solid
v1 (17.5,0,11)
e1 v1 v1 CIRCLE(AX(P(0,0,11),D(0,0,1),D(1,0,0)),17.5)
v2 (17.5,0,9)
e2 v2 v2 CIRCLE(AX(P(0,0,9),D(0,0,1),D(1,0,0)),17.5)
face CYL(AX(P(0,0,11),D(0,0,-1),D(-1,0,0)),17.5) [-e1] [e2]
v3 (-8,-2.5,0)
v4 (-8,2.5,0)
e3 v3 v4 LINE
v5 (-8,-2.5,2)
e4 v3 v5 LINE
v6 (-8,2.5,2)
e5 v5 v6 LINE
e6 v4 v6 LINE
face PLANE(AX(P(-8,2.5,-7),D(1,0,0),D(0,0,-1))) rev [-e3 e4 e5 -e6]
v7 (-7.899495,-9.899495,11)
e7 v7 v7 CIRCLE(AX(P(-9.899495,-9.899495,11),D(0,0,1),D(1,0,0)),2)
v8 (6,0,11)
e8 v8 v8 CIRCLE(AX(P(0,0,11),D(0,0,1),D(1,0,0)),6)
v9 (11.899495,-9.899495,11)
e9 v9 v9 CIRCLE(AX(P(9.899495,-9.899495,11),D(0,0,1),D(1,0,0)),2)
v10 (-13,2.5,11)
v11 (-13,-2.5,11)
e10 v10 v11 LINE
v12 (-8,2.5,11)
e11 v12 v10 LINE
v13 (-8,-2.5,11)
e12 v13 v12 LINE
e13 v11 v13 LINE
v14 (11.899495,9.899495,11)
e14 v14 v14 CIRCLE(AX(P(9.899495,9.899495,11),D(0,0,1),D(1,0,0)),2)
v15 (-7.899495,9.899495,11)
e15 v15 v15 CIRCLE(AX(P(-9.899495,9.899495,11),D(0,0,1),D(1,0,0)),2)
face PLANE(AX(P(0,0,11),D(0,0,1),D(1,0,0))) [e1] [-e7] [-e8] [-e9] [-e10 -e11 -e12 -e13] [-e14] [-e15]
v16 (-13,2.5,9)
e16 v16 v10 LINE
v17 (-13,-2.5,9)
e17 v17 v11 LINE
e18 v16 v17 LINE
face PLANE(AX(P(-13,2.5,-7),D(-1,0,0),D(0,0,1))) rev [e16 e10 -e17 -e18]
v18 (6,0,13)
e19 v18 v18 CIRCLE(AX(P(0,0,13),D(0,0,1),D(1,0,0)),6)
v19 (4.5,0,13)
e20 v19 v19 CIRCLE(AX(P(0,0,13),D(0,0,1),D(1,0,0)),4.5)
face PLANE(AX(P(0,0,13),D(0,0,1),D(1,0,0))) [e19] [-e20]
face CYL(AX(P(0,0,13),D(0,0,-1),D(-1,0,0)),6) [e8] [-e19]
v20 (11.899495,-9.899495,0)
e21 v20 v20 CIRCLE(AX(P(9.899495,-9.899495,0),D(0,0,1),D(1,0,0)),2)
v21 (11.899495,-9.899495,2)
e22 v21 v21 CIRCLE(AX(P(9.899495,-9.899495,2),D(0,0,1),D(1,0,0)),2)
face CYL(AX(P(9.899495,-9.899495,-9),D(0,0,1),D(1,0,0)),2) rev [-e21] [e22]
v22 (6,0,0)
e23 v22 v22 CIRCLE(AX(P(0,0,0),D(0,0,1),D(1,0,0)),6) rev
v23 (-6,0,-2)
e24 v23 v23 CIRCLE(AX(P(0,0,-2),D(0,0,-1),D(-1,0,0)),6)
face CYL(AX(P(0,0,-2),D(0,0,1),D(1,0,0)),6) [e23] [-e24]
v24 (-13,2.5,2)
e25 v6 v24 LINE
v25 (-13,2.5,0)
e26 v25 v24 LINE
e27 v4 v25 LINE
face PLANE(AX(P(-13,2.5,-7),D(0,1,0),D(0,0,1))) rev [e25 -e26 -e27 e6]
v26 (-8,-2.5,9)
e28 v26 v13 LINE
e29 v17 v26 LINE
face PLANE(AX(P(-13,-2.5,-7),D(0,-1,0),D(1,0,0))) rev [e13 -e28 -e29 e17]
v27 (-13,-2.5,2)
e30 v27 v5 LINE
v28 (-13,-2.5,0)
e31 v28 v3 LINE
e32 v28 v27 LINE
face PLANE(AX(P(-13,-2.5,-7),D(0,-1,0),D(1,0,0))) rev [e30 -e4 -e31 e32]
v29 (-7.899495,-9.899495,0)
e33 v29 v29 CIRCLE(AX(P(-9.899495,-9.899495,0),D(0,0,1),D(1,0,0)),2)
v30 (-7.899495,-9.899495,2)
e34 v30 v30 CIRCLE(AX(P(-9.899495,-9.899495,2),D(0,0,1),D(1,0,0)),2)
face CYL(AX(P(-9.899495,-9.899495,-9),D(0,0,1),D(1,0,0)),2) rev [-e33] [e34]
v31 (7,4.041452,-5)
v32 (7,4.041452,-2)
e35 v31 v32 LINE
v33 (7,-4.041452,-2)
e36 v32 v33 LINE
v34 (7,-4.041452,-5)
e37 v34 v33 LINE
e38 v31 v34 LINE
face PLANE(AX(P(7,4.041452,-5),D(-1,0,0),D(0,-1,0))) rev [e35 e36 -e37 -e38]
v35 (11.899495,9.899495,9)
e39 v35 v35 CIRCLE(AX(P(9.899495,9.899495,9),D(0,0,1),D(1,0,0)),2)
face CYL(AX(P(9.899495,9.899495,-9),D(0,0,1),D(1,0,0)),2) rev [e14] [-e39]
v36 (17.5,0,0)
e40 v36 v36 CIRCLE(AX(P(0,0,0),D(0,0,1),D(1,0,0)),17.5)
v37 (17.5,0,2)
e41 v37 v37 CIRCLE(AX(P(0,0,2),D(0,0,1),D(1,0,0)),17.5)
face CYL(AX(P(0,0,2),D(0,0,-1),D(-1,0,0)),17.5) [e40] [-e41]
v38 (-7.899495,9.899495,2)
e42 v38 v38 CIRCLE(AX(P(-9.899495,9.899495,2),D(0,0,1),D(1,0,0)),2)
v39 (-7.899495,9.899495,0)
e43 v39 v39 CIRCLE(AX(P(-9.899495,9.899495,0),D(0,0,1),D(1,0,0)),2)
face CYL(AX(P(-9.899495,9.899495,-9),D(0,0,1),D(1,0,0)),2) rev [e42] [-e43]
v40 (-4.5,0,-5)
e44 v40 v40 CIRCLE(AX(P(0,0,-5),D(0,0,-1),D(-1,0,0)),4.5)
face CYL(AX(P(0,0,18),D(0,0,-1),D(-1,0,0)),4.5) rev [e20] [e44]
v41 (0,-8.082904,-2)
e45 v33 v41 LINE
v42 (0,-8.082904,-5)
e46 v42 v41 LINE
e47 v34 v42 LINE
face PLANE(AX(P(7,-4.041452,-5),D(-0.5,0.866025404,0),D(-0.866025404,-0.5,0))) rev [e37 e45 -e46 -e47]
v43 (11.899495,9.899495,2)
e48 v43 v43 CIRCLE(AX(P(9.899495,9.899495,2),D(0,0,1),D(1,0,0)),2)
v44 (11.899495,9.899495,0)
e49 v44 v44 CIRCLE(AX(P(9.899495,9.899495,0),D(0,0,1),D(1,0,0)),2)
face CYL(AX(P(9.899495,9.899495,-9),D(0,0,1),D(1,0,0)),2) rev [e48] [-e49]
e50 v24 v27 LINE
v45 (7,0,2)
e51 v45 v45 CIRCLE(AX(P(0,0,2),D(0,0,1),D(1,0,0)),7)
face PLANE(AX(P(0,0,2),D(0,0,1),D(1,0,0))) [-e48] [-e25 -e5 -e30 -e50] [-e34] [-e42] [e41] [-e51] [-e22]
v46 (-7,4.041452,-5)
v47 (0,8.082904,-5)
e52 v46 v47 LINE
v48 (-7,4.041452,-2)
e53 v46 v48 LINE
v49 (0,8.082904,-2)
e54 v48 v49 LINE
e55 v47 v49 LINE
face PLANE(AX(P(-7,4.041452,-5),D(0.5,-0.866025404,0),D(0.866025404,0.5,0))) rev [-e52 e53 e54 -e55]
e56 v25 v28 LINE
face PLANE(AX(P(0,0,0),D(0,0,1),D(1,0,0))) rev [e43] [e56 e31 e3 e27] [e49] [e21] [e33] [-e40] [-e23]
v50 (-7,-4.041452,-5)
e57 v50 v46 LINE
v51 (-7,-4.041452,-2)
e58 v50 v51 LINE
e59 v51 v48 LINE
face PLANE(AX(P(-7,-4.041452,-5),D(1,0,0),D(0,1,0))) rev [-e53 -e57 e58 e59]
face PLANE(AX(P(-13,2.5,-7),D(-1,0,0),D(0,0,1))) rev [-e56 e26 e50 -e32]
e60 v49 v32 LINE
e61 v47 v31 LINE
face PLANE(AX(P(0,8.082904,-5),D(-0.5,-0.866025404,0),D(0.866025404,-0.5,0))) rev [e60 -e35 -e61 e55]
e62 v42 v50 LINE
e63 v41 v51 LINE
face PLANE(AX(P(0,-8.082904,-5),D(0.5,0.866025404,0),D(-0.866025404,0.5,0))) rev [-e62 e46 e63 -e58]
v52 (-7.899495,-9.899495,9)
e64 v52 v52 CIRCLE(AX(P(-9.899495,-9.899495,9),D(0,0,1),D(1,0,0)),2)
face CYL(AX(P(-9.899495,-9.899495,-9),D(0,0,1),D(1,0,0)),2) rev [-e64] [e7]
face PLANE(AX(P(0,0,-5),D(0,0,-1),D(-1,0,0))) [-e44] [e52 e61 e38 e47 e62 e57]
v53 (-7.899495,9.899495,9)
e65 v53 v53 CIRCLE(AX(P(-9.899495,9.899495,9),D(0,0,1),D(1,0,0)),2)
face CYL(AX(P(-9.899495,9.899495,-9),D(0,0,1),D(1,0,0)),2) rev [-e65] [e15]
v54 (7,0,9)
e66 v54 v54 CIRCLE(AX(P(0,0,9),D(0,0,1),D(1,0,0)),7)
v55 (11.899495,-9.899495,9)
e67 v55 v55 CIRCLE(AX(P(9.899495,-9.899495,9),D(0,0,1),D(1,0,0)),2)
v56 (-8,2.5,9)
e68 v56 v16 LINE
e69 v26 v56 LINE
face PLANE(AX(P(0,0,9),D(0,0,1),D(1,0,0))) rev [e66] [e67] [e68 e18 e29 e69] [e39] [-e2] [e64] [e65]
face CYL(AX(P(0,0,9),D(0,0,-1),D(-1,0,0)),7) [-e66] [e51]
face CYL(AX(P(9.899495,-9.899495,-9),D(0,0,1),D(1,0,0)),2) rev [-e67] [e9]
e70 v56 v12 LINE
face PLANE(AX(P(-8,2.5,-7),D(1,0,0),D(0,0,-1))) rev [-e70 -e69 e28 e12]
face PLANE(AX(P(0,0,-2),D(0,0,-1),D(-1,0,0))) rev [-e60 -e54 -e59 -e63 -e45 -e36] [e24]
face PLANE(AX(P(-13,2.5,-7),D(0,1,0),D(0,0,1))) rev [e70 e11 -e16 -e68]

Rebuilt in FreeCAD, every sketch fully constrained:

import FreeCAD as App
import Part
import Sketcher

V = App.Vector
Q = App.Units.Quantity

doc = App.newDocument("Part")
params = doc.addObject("Spreadsheet::Sheet", "Params")
for row, (alias, value) in enumerate([
    ("sketch1_diameter", "35 mm"),
    ("pad1_length", "2 mm"),
    ("sketch2_diameter", "14 mm"),
    ("pad2_length", "7 mm"),
    ("sketch3_diameter", "35 mm"),
    ("pad3_length", "2 mm"),
    ("sketch4_width", "5 mm"),
    ("pocket1_length", "18 mm"),
    ("sketch5_diameter", "9 mm"),
    ("pocket2_length", "18 mm"),
    ("sketch6_diameter", "12 mm"),
    ("sketch6_diameter2", "9 mm"),
    ("pad4_length", "2 mm"),
    ("sketch7_diameter", "4 mm"),
    ("pocket3_length", "20 mm"),
    ("sketch8_diameter", "12 mm"),
    ("sketch8_diameter2", "9 mm"),
    ("pad5_length", "2 mm"),
    ("sketch9_diameter", "9 mm"),
    ("pad6_length", "3 mm"),
], start=1):
    params.set(f"A{row}", alias)
    params.set(f"B{row}", "=" + value)
    params.setAlias(f"B{row}", alias)

body = doc.addObject("PartDesign::Body", "Body")

sketch1 = doc.addObject("Sketcher::SketchObject", "Sketch")
body.addObject(sketch1)
sketch1.AttachmentSupport = (doc.XY_Plane, [""])
sketch1.MapMode = "FlatFace"
sketch1.addGeometry(Part.Circle(V(0, 0, 0), V(0, 0, 1), 18), False)
sketch1.addConstraint(Sketcher.Constraint("Coincident", 0, 3, -1, 1))
sketch1.addConstraint(Sketcher.Constraint("Diameter", 0, 35.0))
sketch1.setExpression("Constraints[1]", "Params.sketch1_diameter")
pad1 = doc.addObject("PartDesign::Pad", "Pad")
body.addObject(pad1)
pad1.Profile = sketch1
pad1.setExpression("Length", "Params.pad1_length")

sketch2 = doc.addObject("Sketcher::SketchObject", "Sketch001")
body.addObject(sketch2)
sketch2.AttachmentSupport = (doc.XY_Plane, [""])
sketch2.MapMode = "FlatFace"
sketch2.AttachmentOffset = App.Placement(V(0, 0, 2), App.Rotation())
sketch2.addGeometry(Part.Circle(V(0, 0, 0), V(0, 0, 1), 7), False)
sketch2.addConstraint(Sketcher.Constraint("Coincident", 0, 3, -1, 1))
sketch2.addConstraint(Sketcher.Constraint("Diameter", 0, 14.0))
sketch2.setExpression("Constraints[1]", "Params.sketch2_diameter")
pad2 = doc.addObject("PartDesign::Pad", "Pad001")
body.addObject(pad2)
pad2.Profile = sketch2
pad2.setExpression("Length", "Params.pad2_length")

sketch3 = doc.addObject("Sketcher::SketchObject", "Sketch002")
body.addObject(sketch3)
sketch3.AttachmentSupport = (doc.XY_Plane, [""])
sketch3.MapMode = "FlatFace"
sketch3.AttachmentOffset = App.Placement(V(0, 0, 9), App.Rotation())
sketch3.addGeometry(Part.Circle(V(0, 0, 0), V(0, 0, 1), 18), False)
sketch3.addConstraint(Sketcher.Constraint("Coincident", 0, 3, -1, 1))
sketch3.addConstraint(Sketcher.Constraint("Diameter", 0, 35.0))
sketch3.setExpression("Constraints[1]", "Params.sketch3_diameter")
pad3 = doc.addObject("PartDesign::Pad", "Pad002")
body.addObject(pad3)
pad3.Profile = sketch3
pad3.setExpression("Length", "Params.pad3_length")

sketch4 = doc.addObject("Sketcher::SketchObject", "Sketch003")
body.addObject(sketch4)
sketch4.AttachmentSupport = (doc.XY_Plane, [""])
sketch4.MapMode = "FlatFace"
sketch4.AttachmentOffset = App.Placement(V(0, 0, 11), App.Rotation())
sketch4.addGeometry(Part.LineSegment(V(-13, 2, 0), V(-13, -2, 0)), False)
sketch4.addGeometry(Part.LineSegment(V(-13, -2, 0), V(-8, -2, 0)), False)
sketch4.addGeometry(Part.LineSegment(V(-8, -2, 0), V(-8, 2, 0)), False)
sketch4.addGeometry(Part.LineSegment(V(-8, 2, 0), V(-13, 2, 0)), False)
sketch4.addConstraint(Sketcher.Constraint("Coincident", 0, 2, 1, 1))
sketch4.addConstraint(Sketcher.Constraint("Coincident", 1, 2, 2, 1))
sketch4.addConstraint(Sketcher.Constraint("Coincident", 2, 2, 3, 1))
sketch4.addConstraint(Sketcher.Constraint("Coincident", 3, 2, 0, 1))
sketch4.addConstraint(Sketcher.Constraint("Vertical", 0))
sketch4.addConstraint(Sketcher.Constraint("Horizontal", 1))
sketch4.addConstraint(Sketcher.Constraint("Vertical", 2))
sketch4.addConstraint(Sketcher.Constraint("Horizontal", 3))
sketch4.addConstraint(Sketcher.Constraint("Equal", 3, 0))
sketch4.addConstraint(Sketcher.Constraint("DistanceX", 1, 1, 1, 2, 5.0))
sketch4.addConstraint(Sketcher.Constraint("DistanceX", 0, 2, -1, 1, 13.0))
sketch4.addConstraint(Sketcher.Constraint("DistanceY", 0, 2, -1, 1, 2.5))
sketch4.setExpression("Constraints[9]", "Params.sketch4_width")
pocket1 = doc.addObject("PartDesign::Pocket", "Pocket")
body.addObject(pocket1)
pocket1.Profile = sketch4
pocket1.setExpression("Length", "Params.pocket1_length")

sketch5 = doc.addObject("Sketcher::SketchObject", "Sketch004")
body.addObject(sketch5)
sketch5.AttachmentSupport = (doc.XY_Plane, [""])
sketch5.MapMode = "FlatFace"
sketch5.addGeometry(Part.Circle(V(0, 0, 0), V(0, 0, 1), 4.5), False)
sketch5.addConstraint(Sketcher.Constraint("Coincident", 0, 3, -1, 1))
sketch5.addConstraint(Sketcher.Constraint("Diameter", 0, 9.0))
sketch5.setExpression("Constraints[1]", "Params.sketch5_diameter")
pocket2 = doc.addObject("PartDesign::Pocket", "Pocket001")
body.addObject(pocket2)
pocket2.Profile = sketch5
pocket2.setExpression("Length", "Params.pocket2_length")
pocket2.Reversed = True

sketch6 = doc.addObject("Sketcher::SketchObject", "Sketch005")
body.addObject(sketch6)
sketch6.AttachmentSupport = (doc.XY_Plane, [""])
sketch6.MapMode = "FlatFace"
sketch6.AttachmentOffset = App.Placement(V(0, 0, 11), App.Rotation())
sketch6.addGeometry(Part.Circle(V(0, 0, 0), V(0, 0, 1), 6), False)
sketch6.addGeometry(Part.Circle(V(0, 0, 0), V(0, 0, 1), 4.5), False)
sketch6.addConstraint(Sketcher.Constraint("Coincident", 0, 3, -1, 1))
sketch6.addConstraint(Sketcher.Constraint("Coincident", 1, 3, -1, 1))
sketch6.addConstraint(Sketcher.Constraint("Diameter", 0, 12.0))
sketch6.addConstraint(Sketcher.Constraint("Diameter", 1, 9.0))
sketch6.setExpression("Constraints[2]", "Params.sketch6_diameter")
sketch6.setExpression("Constraints[3]", "Params.sketch6_diameter2")
pad4 = doc.addObject("PartDesign::Pad", "Pad003")
body.addObject(pad4)
pad4.Profile = sketch6
pad4.setExpression("Length", "Params.pad4_length")

sketch7 = doc.addObject("Sketcher::SketchObject", "Sketch006")
body.addObject(sketch7)
sketch7.AttachmentSupport = (doc.XY_Plane, [""])
sketch7.MapMode = "FlatFace"
sketch7.AttachmentOffset = App.Placement(V(0, 0, 11), App.Rotation())
sketch7.addGeometry(Part.Circle(V(-9.9, 9.9, 0), V(0, 0, 1), 2), False)
sketch7.addGeometry(Part.Circle(V(9.9, 9.9, 0), V(0, 0, 1), 2), False)
sketch7.addGeometry(Part.Circle(V(9.9, -9.9, 0), V(0, 0, 1), 2), False)
sketch7.addGeometry(Part.Circle(V(-9.9, -9.9, 0), V(0, 0, 1), 2), False)
sketch7.addConstraint(Sketcher.Constraint("Equal", 0, 1))
sketch7.addConstraint(Sketcher.Constraint("Equal", 1, 2))
sketch7.addConstraint(Sketcher.Constraint("Equal", 2, 3))
sketch7.addConstraint(Sketcher.Constraint("Symmetric", 0, 3, 2, 3, -1, 1))
sketch7.addConstraint(Sketcher.Constraint("Symmetric", 1, 3, 3, 3, -1, 1))
sketch7.addConstraint(Sketcher.Constraint("Symmetric", 0, 3, 1, 3, -2))
sketch7.addConstraint(Sketcher.Constraint("Diameter", 0, 4.0))
sketch7.addConstraint(Sketcher.Constraint("DistanceX", 0, 3, 1, 3, 19.79899))
sketch7.addConstraint(Sketcher.Constraint("DistanceY", 2, 3, 1, 3, 19.79899))
sketch7.setExpression("Constraints[6]", "Params.sketch7_diameter")
pocket3 = doc.addObject("PartDesign::Pocket", "Pocket002")
body.addObject(pocket3)
pocket3.Profile = sketch7
pocket3.setExpression("Length", "Params.pocket3_length")

sketch8 = doc.addObject("Sketcher::SketchObject", "Sketch007")
body.addObject(sketch8)
sketch8.AttachmentSupport = (doc.XY_Plane, [""])
sketch8.MapMode = "FlatFace"
sketch8.AttachmentOffset = App.Placement(V(0, 0, -2), App.Rotation())
sketch8.addGeometry(Part.Circle(V(0, 0, 0), V(0, 0, 1), 6), False)
sketch8.addGeometry(Part.Circle(V(0, 0, 0), V(0, 0, 1), 4.5), False)
sketch8.addConstraint(Sketcher.Constraint("Coincident", 0, 3, -1, 1))
sketch8.addConstraint(Sketcher.Constraint("Coincident", 1, 3, -1, 1))
sketch8.addConstraint(Sketcher.Constraint("Diameter", 0, 12.0))
sketch8.addConstraint(Sketcher.Constraint("Diameter", 1, 9.0))
sketch8.setExpression("Constraints[2]", "Params.sketch8_diameter")
sketch8.setExpression("Constraints[3]", "Params.sketch8_diameter2")
pad5 = doc.addObject("PartDesign::Pad", "Pad004")
body.addObject(pad5)
pad5.Profile = sketch8
pad5.setExpression("Length", "Params.pad5_length")

sketch9 = doc.addObject("Sketcher::SketchObject", "Sketch008")
body.addObject(sketch9)
sketch9.AttachmentSupport = (doc.XY_Plane, [""])
sketch9.MapMode = "FlatFace"
sketch9.AttachmentOffset = App.Placement(V(0, 0, -5), App.Rotation())
sketch9.addGeometry(Part.LineSegment(V(0, 8.1, 0), V(7, 4, 0)), False)
sketch9.addGeometry(Part.LineSegment(V(7, 4, 0), V(7, -4, 0)), False)
sketch9.addGeometry(Part.LineSegment(V(7, -4, 0), V(0, -8.1, 0)), False)
sketch9.addGeometry(Part.LineSegment(V(0, -8.1, 0), V(-7, -4, 0)), False)
sketch9.addGeometry(Part.LineSegment(V(-7, -4, 0), V(-7, 4, 0)), False)
sketch9.addGeometry(Part.LineSegment(V(-7, 4, 0), V(0, 8.1, 0)), False)
sketch9.addGeometry(Part.Circle(V(0, 0, 0), V(0, 0, 1), 4.5), False)
sketch9.addConstraint(Sketcher.Constraint("Coincident", 0, 2, 1, 1))
sketch9.addConstraint(Sketcher.Constraint("Coincident", 1, 2, 2, 1))
sketch9.addConstraint(Sketcher.Constraint("Coincident", 2, 2, 3, 1))
sketch9.addConstraint(Sketcher.Constraint("Coincident", 3, 2, 4, 1))
sketch9.addConstraint(Sketcher.Constraint("Coincident", 4, 2, 5, 1))
sketch9.addConstraint(Sketcher.Constraint("Coincident", 5, 2, 0, 1))
sketch9.addConstraint(Sketcher.Constraint("Vertical", 1))
sketch9.addConstraint(Sketcher.Constraint("Vertical", 4))
sketch9.addConstraint(Sketcher.Constraint("Coincident", 6, 3, -1, 1))
sketch9.addConstraint(Sketcher.Constraint("Symmetric", 0, 2, 3, 2, -1, 1))
sketch9.addConstraint(Sketcher.Constraint("Symmetric", 2, 2, 5, 2, -1, 1))
sketch9.addConstraint(Sketcher.Constraint("PointOnObject", 2, 2, -2))
sketch9.addConstraint(Sketcher.Constraint("Parallel", 2, 5))
sketch9.addConstraint(Sketcher.Constraint("Horizontal", 1, 2, 3, 2))
sketch9.addConstraint(Sketcher.Constraint("Diameter", 6, 9.0))
sketch9.addConstraint(Sketcher.Constraint("Angle", 0, Q("-30 deg")))
sketch9.addConstraint(Sketcher.Constraint("DistanceX", -1, 1, 0, 2, 7.0))
sketch9.addConstraint(Sketcher.Constraint("DistanceY", 1, 2, 1, 1, 8.082904))
sketch9.setExpression("Constraints[14]", "Params.sketch9_diameter")
pad6 = doc.addObject("PartDesign::Pad", "Pad005")
body.addObject(pad6)
pad6.Profile = sketch9
pad6.setExpression("Length", "Params.pad6_length")

doc.recompute()
